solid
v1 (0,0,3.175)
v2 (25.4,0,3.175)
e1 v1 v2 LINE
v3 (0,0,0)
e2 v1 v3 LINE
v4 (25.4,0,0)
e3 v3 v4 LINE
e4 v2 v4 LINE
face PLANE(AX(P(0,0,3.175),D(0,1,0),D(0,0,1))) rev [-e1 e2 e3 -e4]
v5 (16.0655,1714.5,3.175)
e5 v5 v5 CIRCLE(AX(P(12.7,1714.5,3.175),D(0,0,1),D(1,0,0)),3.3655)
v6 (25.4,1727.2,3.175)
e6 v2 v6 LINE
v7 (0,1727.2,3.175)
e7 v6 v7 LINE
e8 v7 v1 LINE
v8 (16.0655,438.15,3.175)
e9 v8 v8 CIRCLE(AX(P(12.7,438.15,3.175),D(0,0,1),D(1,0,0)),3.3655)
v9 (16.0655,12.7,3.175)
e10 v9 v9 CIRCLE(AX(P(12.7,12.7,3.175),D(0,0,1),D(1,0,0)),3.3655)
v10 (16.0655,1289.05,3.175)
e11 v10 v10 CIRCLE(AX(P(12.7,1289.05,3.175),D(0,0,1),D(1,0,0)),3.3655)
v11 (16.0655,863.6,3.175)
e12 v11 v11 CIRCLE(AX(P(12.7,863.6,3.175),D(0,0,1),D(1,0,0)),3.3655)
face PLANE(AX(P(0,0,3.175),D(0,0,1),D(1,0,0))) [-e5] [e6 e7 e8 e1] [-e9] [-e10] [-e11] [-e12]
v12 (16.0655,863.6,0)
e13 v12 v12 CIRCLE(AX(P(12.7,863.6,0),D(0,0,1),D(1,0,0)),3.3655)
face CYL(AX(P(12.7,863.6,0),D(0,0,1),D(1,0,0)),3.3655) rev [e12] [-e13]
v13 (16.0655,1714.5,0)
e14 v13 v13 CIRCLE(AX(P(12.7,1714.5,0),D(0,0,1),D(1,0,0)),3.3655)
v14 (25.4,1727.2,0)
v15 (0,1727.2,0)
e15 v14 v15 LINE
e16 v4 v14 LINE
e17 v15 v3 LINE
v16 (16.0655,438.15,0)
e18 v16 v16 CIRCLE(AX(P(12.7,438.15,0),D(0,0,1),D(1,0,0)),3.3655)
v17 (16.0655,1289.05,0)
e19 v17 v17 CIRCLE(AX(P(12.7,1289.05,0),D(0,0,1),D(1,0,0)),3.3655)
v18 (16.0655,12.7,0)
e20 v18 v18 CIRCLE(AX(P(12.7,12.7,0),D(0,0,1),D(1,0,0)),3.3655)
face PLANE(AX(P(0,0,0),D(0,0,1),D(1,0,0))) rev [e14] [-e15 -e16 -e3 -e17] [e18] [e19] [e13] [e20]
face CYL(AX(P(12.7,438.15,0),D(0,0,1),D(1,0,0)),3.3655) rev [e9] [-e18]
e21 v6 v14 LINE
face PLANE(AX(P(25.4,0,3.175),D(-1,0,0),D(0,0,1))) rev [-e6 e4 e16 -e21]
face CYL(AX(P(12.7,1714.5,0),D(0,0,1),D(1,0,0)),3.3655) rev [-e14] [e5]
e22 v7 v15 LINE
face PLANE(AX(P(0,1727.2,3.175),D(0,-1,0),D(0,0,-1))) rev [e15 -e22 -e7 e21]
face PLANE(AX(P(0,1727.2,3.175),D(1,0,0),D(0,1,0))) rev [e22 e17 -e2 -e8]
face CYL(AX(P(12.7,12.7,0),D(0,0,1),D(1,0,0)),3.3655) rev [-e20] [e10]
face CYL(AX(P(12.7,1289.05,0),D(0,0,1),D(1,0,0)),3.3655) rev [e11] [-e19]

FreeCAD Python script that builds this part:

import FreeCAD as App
import Part
import Sketcher
from FreeCAD import Vector
Q = App.Units.Quantity


def add_polygon(sketch, points):
    """Adds a closed chain of lines whose ends are joined by coincident constraints."""
    first, n = sketch.GeometryCount, len(points)
    for a, b in zip(points, points[1:] + points[:1]):
        sketch.addGeometry(Part.LineSegment(App.Vector(*a, 0), App.Vector(*b, 0)), False)
    for i in range(n):
        sketch.addConstraint(Sketcher.Constraint("Coincident", first + i, 2, first + (i + 1) % n, 1))

doc = App.newDocument("Part")
body = doc.addObject("PartDesign::Body", "Body")

# Sketch on XY plane
sketch1 = body.newObject("Sketcher::SketchObject", "Sketch")
sketch1.AttachmentSupport = (doc.getObject("XY_Plane"), [""])
sketch1.MapMode = "FlatFace"
add_polygon(sketch1, [(0, 1727), (0, 0), (25, 0), (25, 1727)])  # lines 0-3
sketch1.addConstraint([
    Sketcher.Constraint("Vertical", 0),
    Sketcher.Constraint("Horizontal", 1),
    Sketcher.Constraint("Vertical", 2),
    Sketcher.Constraint("Horizontal", 3),
    Sketcher.Constraint("Coincident", 0, 2, -1, 1),
    Sketcher.Constraint("DistanceX", 1, 1, 1, 2, Q("1 in")),
    Sketcher.Constraint("DistanceY", 0, 2, 0, 1, Q("68 in")),
])
pad1 = body.newObject("PartDesign::Pad", "Pad")
pad1.Profile = sketch1
pad1.Length = Q("0.125 in")

# Sketch on XY plane
sketch2 = body.newObject("Sketcher::SketchObject", "Sketch001")
sketch2.AttachmentSupport = (doc.getObject("XY_Plane"), [""])
sketch2.MapMode = "FlatFace"
sketch2.AttachmentOffset = App.Placement(Vector(0, 0, 0.125 * 25.4), App.Rotation())
sketch2.addGeometry(Part.Circle(Vector(12.7, 12.7, 0), Vector(0, 0, 1), 3.4), False)
sketch2.addConstraint([
    Sketcher.Constraint("Diameter", 0, Q("0.265 in")),
    Sketcher.Constraint("DistanceX", -1, 1, 0, 3, Q("0.5 in")),
    Sketcher.Constraint("DistanceY", -1, 1, 0, 3, Q("0.5 in")),
])
pocket1 = body.newObject("PartDesign::Pocket", "Pocket")
pocket1.Profile = sketch2
pocket1.Type = "ThroughAll"
doc.recompute()

linearpattern = body.newObject("PartDesign::LinearPattern", "LinearPattern")
linearpattern.Originals = [pocket1]
linearpattern.Direction = (doc.getObject("Y_Axis"), [""])
linearpattern.Mode = "offset"
linearpattern.Offset = Q("16.75 in")
linearpattern.Occurrences = 5
body.Tip = linearpattern

doc.recompute()
